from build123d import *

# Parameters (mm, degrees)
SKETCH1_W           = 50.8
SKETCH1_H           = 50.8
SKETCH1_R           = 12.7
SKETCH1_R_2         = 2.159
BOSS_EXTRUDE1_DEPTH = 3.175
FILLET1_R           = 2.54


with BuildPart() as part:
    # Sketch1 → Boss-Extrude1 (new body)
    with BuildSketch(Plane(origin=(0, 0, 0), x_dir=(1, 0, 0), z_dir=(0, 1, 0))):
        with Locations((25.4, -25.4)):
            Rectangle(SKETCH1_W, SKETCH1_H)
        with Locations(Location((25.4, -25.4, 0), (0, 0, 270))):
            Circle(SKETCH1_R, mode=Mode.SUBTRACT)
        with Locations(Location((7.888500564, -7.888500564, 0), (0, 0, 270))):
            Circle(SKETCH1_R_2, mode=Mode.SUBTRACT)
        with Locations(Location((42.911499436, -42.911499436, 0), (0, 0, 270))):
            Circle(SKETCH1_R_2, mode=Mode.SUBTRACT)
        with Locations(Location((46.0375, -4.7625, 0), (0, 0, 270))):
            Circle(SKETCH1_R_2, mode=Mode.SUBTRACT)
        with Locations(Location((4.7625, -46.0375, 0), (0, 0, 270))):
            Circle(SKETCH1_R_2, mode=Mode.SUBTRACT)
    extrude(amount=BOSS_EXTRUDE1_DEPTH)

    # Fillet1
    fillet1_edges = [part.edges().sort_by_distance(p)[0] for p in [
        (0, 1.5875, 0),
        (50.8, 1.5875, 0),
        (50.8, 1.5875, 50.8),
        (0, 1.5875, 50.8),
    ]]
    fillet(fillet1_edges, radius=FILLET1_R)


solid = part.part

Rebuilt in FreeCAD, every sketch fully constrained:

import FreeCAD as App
import Part
import Sketcher

V = App.Vector
Q = App.Units.Quantity


def edges_at(feature, points):
    """Names of the edges that pass closest to the given points."""
    edges = feature.Shape.Edges
    near = lambda p: min(range(len(edges)), key=lambda i: edges[i].distToShape(Part.Vertex(*p))[0])
    return sorted({f"Edge{near(p) + 1}" for p in points})

doc = App.newDocument("Part")
body = doc.addObject("PartDesign::Body", "Body")

# Sketch on XZ plane
sketch1 = body.newObject("Sketcher::SketchObject", "Sketch")
sketch1.AttachmentSupport = (doc.getObject("XZ_Plane"), [""])
sketch1.MapMode = "FlatFace"
sketch1.addGeometry([
    Part.LineSegment(V(0, 0, 0), V(0, 50.8, 0)),  # 0
    Part.LineSegment(V(0, 50.8, 0), V(50.8, 50.8, 0)),  # 1
    Part.LineSegment(V(50.8, 50.8, 0), V(50.8, 0, 0)),  # 2
    Part.LineSegment(V(50.8, 0, 0), V(0, 0, 0)),  # 3
    Part.Circle(V(4.7625, 46.0375, 0), V(0, 0, 1), 2.159),  # 4
    Part.Circle(V(25.4, 25.4, 0), V(0, 0, 1), 12.7),  # 5
    Part.Circle(V(42.911499, 42.911499, 0), V(0, 0, 1), 2.159),  # 6
    Part.Circle(V(7.888501, 7.888501, 0), V(0, 0, 1), 2.159),  # 7
    Part.Circle(V(46.0375, 4.7625, 0), V(0, 0, 1), 2.159),  # 8
], False)
sketch1.addConstraint([
    Sketcher.Constraint("Coincident", 0, 2, 1, 1),
    Sketcher.Constraint("Coincident", 1, 2, 2, 1),
    Sketcher.Constraint("Coincident", 2, 2, 3, 1),
    Sketcher.Constraint("Coincident", 3, 2, 0, 1),
    Sketcher.Constraint("Vertical", 0),
    Sketcher.Constraint("Horizontal", 1),
    Sketcher.Constraint("Vertical", 2),
    Sketcher.Constraint("Horizontal", 3),
    Sketcher.Constraint("Coincident", 3, 2, -1, 1),
    Sketcher.Constraint("Equal", 4, 6),
    Sketcher.Constraint("Equal", 6, 7),
    Sketcher.Constraint("Equal", 7, 8),
    Sketcher.Constraint("Equal", 3, 0),
    Sketcher.Constraint("Diameter", 5, Q("1 in")),
    Sketcher.Constraint("Diameter", 4, Q("0.17 in")),
    Sketcher.Constraint("DistanceX", 1, 1, 1, 2, Q("2 in")),
    Sketcher.Constraint("DistanceX", -1, 1, 5, 3, Q("1 in")),
    Sketcher.Constraint("DistanceY", -1, 1, 5, 3, Q("1 in")),
    Sketcher.Constraint("DistanceX", -1, 1, 4, 3, Q("0.1875 in")),
    Sketcher.Constraint("DistanceY", -1, 1, 4, 3, Q("1.8125 in")),
    Sketcher.Constraint("DistanceX", -1, 1, 8, 3, Q("1.8125 in")),
    Sketcher.Constraint("DistanceY", -1, 1, 8, 3, Q("0.1875 in")),
    Sketcher.Constraint("DistanceX", -1, 1, 6, 3, 42.911499),
    Sketcher.Constraint("DistanceY", -1, 1, 6, 3, 42.911499),
    Sketcher.Constraint("DistanceX", -1, 1, 7, 3, 7.888501),
    Sketcher.Constraint("DistanceY", -1, 1, 7, 3, 7.888501),
])
pad1 = body.newObject("PartDesign::Pad", "Pad")
pad1.Profile = sketch1
pad1.Length = Q("0.125 in")
pad1.Reversed = True
doc.recompute()

fillet = body.newObject("PartDesign::Fillet", "Fillet")
fillet.Base = (pad1, edges_at(pad1, [
    (0, 1.587, 0),
    (50.8, 1.587, 0),
    (50.8, 1.587, 50.8),
    (0, 1.587, 50.8),
]))
fillet.Radius = Q("0.1 in")

doc.recompute()
